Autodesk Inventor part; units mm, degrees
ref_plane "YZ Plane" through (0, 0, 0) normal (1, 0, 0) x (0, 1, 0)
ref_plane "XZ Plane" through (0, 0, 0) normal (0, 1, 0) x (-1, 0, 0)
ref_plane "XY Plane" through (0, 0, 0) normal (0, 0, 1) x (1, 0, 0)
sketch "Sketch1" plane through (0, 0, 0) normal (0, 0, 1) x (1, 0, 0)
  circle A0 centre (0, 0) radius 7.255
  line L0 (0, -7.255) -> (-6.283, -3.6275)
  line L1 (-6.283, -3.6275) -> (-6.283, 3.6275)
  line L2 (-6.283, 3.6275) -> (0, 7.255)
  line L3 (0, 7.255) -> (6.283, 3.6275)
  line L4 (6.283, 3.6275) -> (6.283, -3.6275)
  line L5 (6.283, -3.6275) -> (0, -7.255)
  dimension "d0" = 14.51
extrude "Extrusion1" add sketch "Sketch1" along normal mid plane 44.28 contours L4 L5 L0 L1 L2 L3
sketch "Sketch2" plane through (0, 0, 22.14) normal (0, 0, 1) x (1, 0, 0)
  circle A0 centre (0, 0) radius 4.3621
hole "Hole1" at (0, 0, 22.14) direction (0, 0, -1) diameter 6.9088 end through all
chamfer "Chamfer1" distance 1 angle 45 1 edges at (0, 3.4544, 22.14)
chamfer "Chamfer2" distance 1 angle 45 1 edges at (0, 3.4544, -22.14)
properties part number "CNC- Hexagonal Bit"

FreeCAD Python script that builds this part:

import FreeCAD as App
import Part
import Sketcher

V = App.Vector
Q = App.Units.Quantity


def edges_at(feature, points):
    """Names of the edges that pass closest to the given points."""
    edges = feature.Shape.Edges
    near = lambda p: min(range(len(edges)), key=lambda i: edges[i].distToShape(Part.Vertex(*p))[0])
    return sorted({f"Edge{near(p) + 1}" for p in points})

doc = App.newDocument("Part")
params = doc.addObject("Spreadsheet::Sheet", "Params")
for row, (alias, value) in enumerate([
    ("pad1_length", "44.28 mm"),
    ("hole_diameter", "6.9088 mm"),
    ("chamfer_size", "1 mm"),
    ("chamfer2_size", "1 mm"),
], start=1):
    params.set(f"A{row}", alias)
    params.set(f"B{row}", "=" + value)
    params.setAlias(f"B{row}", alias)

body = doc.addObject("PartDesign::Body", "Body")

sketch1 = doc.addObject("Sketcher::SketchObject", "Sketch")
body.addObject(sketch1)
sketch1.AttachmentSupport = (doc.XY_Plane, [""])
sketch1.MapMode = "FlatFace"
sketch1.addGeometry([
    Part.LineSegment(V(6, -4, 0), V(6, 4, 0)),
    Part.LineSegment(V(6, 4, 0), V(0, 7, 0)),
    Part.LineSegment(V(0, 7, 0), V(-6, 4, 0)),
    Part.LineSegment(V(-6, 4, 0), V(-6, -4, 0)),
    Part.LineSegment(V(-6, -4, 0), V(0, -7, 0)),
    Part.LineSegment(V(0, -7, 0), V(6, -4, 0)),
], False)
sketch1.addConstraint([
    Sketcher.Constraint("Coincident", 0, 2, 1, 1),
    Sketcher.Constraint("Coincident", 1, 2, 2, 1),
    Sketcher.Constraint("Coincident", 2, 2, 3, 1),
    Sketcher.Constraint("Coincident", 3, 2, 4, 1),
    Sketcher.Constraint("Coincident", 4, 2, 5, 1),
    Sketcher.Constraint("Coincident", 5, 2, 0, 1),
    Sketcher.Constraint("Vertical", 0),
    Sketcher.Constraint("Vertical", 3),
    Sketcher.Constraint("Symmetric", 0, 2, 3, 2, -1, 1),
    Sketcher.Constraint("Symmetric", 1, 2, 4, 2, -1, 1),
    Sketcher.Constraint("PointOnObject", 1, 2, -2),
    Sketcher.Constraint("Parallel", 2, 5),
    Sketcher.Constraint("Horizontal", 0, 2, 2, 2),
    Sketcher.Constraint("Angle", 1, Q("150 deg")),
    Sketcher.Constraint("DistanceY", 4, 2, 1, 2, 14.51),
    Sketcher.Constraint("DistanceY", 0, 1, 0, 2, 7.255),
])
pad1 = doc.addObject("PartDesign::Pad", "Pad")
body.addObject(pad1)
pad1.Profile = sketch1
pad1.setExpression("Length", "Params.pad1_length")
pad1.Midplane = True

sketch2 = doc.addObject("Sketcher::SketchObject", "Sketch001")
body.addObject(sketch2)
sketch2.AttachmentSupport = (doc.XY_Plane, [""])
sketch2.MapMode = "FlatFace"
sketch2.AttachmentOffset = App.Placement(V(0, 0, 22.14), App.Rotation())
sketch2.addGeometry(Part.Circle(V(0, 0, 0), V(0, 0, 1), 3.5), False)
sketch2.addConstraint([
    Sketcher.Constraint("Coincident", 0, 3, -1, 1),
    Sketcher.Constraint("Diameter", 0, 6.9088),
])
doc.recompute()
hole = doc.addObject("PartDesign::Hole", "Hole")
body.addObject(hole)
hole.Profile = sketch2
hole.ThreadType = "None"
hole.setExpression("Diameter", "Params.hole_diameter")
hole.DepthType = "ThroughAll"
doc.recompute()

chamfer = doc.addObject("PartDesign::Chamfer", "Chamfer")
body.addObject(chamfer)
chamfer.Base = (hole, edges_at(hole, [(0, 3.454, 22.14)]))
chamfer.setExpression("Size", "Params.chamfer_size")
doc.recompute()

chamfer2 = doc.addObject("PartDesign::Chamfer", "Chamfer001")
body.addObject(chamfer2)
chamfer2.Base = (chamfer, edges_at(chamfer, [(0, 3.454, -22.14)]))
chamfer2.setExpression("Size", "Params.chamfer2_size")

doc.recompute()
